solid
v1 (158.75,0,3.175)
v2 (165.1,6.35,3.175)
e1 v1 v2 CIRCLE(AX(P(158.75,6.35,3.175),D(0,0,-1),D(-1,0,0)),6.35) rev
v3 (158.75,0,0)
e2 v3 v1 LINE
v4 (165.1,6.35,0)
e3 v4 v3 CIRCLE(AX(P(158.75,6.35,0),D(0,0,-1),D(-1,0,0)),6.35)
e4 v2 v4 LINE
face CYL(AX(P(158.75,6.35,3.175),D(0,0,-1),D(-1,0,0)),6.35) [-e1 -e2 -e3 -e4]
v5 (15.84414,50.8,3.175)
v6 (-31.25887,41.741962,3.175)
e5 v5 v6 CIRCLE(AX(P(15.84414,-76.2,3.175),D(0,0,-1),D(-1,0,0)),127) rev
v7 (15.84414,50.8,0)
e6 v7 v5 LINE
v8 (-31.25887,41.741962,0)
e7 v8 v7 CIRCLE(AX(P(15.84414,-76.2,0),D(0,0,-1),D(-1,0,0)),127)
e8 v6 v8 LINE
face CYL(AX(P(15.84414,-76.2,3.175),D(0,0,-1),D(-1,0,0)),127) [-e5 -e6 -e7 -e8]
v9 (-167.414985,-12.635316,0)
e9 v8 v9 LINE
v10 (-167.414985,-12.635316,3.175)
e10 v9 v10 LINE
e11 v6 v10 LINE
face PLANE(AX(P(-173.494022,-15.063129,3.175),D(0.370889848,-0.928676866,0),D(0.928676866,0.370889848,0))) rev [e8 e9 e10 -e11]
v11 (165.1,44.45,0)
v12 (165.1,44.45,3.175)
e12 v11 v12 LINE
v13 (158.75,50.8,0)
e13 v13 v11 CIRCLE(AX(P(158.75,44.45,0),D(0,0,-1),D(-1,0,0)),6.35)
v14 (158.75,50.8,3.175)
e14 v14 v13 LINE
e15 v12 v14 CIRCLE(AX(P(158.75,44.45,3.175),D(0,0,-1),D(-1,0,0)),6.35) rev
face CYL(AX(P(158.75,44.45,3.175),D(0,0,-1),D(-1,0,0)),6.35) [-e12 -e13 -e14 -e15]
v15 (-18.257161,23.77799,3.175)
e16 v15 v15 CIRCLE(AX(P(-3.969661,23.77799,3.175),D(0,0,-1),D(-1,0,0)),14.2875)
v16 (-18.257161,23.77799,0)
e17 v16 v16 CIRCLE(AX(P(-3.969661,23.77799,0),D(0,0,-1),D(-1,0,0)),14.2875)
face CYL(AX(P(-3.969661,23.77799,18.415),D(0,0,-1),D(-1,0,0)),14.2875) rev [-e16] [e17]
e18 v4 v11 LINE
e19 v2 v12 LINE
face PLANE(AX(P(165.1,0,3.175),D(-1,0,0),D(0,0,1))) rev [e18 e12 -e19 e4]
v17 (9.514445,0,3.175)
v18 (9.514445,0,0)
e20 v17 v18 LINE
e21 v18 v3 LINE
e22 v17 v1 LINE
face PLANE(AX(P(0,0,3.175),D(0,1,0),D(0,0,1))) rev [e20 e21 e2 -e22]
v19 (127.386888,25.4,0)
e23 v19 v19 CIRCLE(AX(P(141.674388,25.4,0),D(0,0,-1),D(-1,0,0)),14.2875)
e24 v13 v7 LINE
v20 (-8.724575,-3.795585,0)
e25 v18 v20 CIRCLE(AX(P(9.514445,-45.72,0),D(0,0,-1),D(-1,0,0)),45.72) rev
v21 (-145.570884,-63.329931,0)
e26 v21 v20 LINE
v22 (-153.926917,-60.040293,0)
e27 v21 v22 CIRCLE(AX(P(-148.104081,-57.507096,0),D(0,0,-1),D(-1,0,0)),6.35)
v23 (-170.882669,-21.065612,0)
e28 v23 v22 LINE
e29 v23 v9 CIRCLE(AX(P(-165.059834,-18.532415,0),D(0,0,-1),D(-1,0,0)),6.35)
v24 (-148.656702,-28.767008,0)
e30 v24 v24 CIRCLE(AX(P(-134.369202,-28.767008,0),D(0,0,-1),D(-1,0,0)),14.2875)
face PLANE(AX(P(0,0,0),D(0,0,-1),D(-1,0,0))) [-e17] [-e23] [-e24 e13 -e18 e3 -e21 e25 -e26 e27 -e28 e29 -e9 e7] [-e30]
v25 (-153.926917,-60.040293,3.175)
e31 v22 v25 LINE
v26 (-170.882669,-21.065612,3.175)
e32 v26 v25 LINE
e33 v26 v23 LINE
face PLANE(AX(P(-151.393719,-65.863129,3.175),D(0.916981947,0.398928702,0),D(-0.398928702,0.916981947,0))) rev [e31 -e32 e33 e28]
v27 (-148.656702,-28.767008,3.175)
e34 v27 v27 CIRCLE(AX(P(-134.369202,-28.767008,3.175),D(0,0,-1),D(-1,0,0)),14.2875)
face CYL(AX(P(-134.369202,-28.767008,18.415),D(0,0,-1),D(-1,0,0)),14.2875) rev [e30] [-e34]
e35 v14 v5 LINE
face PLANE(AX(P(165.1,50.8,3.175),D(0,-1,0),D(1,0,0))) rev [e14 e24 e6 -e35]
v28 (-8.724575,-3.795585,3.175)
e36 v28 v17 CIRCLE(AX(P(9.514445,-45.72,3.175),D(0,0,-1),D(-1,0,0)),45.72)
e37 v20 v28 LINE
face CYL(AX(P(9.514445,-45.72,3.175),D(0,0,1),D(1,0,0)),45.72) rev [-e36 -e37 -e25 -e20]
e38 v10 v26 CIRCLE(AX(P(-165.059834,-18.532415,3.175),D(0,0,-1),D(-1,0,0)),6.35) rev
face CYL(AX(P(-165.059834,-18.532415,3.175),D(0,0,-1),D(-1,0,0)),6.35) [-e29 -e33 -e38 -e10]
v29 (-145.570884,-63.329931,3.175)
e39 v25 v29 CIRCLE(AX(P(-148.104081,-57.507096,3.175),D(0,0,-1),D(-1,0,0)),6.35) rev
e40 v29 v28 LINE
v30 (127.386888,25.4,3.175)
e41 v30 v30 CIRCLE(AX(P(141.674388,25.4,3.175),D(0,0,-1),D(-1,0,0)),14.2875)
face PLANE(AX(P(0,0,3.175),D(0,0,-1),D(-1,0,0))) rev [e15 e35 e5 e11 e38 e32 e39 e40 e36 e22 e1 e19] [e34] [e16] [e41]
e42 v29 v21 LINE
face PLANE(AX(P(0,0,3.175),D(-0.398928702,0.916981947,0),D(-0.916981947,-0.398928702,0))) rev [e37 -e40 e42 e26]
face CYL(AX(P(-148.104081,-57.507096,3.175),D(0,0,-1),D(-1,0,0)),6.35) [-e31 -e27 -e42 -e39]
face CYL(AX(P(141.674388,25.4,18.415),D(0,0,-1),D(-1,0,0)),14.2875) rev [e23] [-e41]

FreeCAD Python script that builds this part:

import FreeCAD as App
import Part
import Sketcher
Q = App.Units.Quantity


def edges_at(feature, points):
    """Names of the edges that pass closest to the given points."""
    edges = feature.Shape.Edges
    near = lambda p: min(range(len(edges)), key=lambda i: edges[i].distToShape(Part.Vertex(*p))[0])
    return sorted({f"Edge{near(p) + 1}" for p in points})

doc = App.newDocument("Part")
params = doc.addObject("Spreadsheet::Sheet", "Params")
for row, (alias, value) in enumerate([
    ("sketch1_height", "2 in"),
    ("sketch1_width", "6.5 in"),
    ("sketch1_length", "6.5 in"),
    ("pad1_length", "0.125 in"),
    ("fillet_radius", "1.8 in"),
    ("fillet2_radius", "5 in"),
    ("fillet3_radius", "0.25 in"),
    ("fillet4_radius", "0.25 in"),
    ("fillet5_radius", "0.25 in"),
    ("fillet6_radius", "0.25 in"),
    ("sketch2_diameter", "1.125 in"),
    ("pocket1_length", "0.725 in"),
], start=1):
    params.set(f"A{row}", alias)
    params.set(f"B{row}", "=" + value)
    params.setAlias(f"B{row}", alias)

body = doc.addObject("PartDesign::Body", "Body")

# Sketch on XY plane
sketch1 = body.newObject("Sketcher::SketchObject", "Sketch")
sketch1.AttachmentSupport = (doc.getObject("XY_Plane"), [""])
sketch1.MapMode = "FlatFace"
sketch1.addGeometry([
    Part.LineSegment(App.Vector(0, 0, 0), App.Vector(165.1, 0, 0)),  # 0
    Part.LineSegment(App.Vector(165.1, 0, 0), App.Vector(165.1, 50.8, 0)),  # 1
    Part.LineSegment(App.Vector(165.1, 50.8, 0), App.Vector(-8.578308, 50.8, 0)),  # 2
    Part.LineSegment(App.Vector(-8.578308, 50.8, 0), App.Vector(-173.494022, -15.063129, 0)),  # 3
    Part.LineSegment(App.Vector(-173.494022, -15.063129, 0), App.Vector(-151.393719, -65.863129, 0)),  # 4
    Part.LineSegment(App.Vector(-151.393719, -65.863129, 0), App.Vector(0, 0, 0)),  # 5
], False)
sketch1.addConstraint([
    Sketcher.Constraint("Coincident", 0, 2, 1, 1),
    Sketcher.Constraint("Coincident", 1, 2, 2, 1),
    Sketcher.Constraint("Coincident", 2, 2, 3, 1),
    Sketcher.Constraint("Coincident", 3, 2, 4, 1),
    Sketcher.Constraint("Coincident", 4, 2, 5, 1),
    Sketcher.Constraint("Coincident", 5, 2, 0, 1),
    Sketcher.Constraint("Horizontal", 0),
    Sketcher.Constraint("Vertical", 1),
    Sketcher.Constraint("Horizontal", 2),
    Sketcher.Constraint("Coincident", 5, 2, -1, 1),
    Sketcher.Constraint("Perpendicular", 4, 5),
    Sketcher.Constraint("DistanceY", 1, 1, 1, 2, Q("2 in")),
    Sketcher.Constraint("DistanceX", 0, 1, 0, 2, Q("6.5 in")),
    Sketcher.Constraint("DistanceY", 4, 2, 3, 2, Q("2 in")),
    Sketcher.Constraint("Distance", 5, Q("6.5 in")),
    Sketcher.Constraint("DistanceX", 2, 2, 2, 1, Q("173.678308 mm")),
    Sketcher.Constraint("DistanceX", 3, 2, -1, 1, Q("173.494022 mm")),
])
sketch1.setExpression("Constraints[11]", "Params.sketch1_height")
sketch1.setExpression("Constraints[12]", "Params.sketch1_width")
sketch1.setExpression("Constraints[14]", "Params.sketch1_length")
pad1 = body.newObject("PartDesign::Pad", "Pad")
pad1.Profile = sketch1
pad1.setExpression("Length", "Params.pad1_length")
doc.recompute()

fillet = body.newObject("PartDesign::Fillet", "Fillet")
fillet.Base = (pad1, edges_at(pad1, [(0, 0, 1.587)]))
fillet.setExpression("Radius", "Params.fillet_radius")
doc.recompute()

fillet2 = body.newObject("PartDesign::Fillet", "Fillet001")
fillet2.Base = (fillet, edges_at(fillet, [(-8.578, 50.8, 1.587)]))
fillet2.setExpression("Radius", "Params.fillet2_radius")
doc.recompute()

fillet3 = body.newObject("PartDesign::Fillet", "Fillet002")
fillet3.Base = (fillet2, edges_at(fillet2, [(-151.394, -65.863, 1.587)]))
fillet3.setExpression("Radius", "Params.fillet3_radius")
doc.recompute()

fillet4 = body.newObject("PartDesign::Fillet", "Fillet003")
fillet4.Base = (fillet3, edges_at(fillet3, [(-173.494, -15.063, 1.587)]))
fillet4.setExpression("Radius", "Params.fillet4_radius")
doc.recompute()

fillet5 = body.newObject("PartDesign::Fillet", "Fillet004")
fillet5.Base = (fillet4, edges_at(fillet4, [(165.1, 0, 1.587)]))
fillet5.setExpression("Radius", "Params.fillet5_radius")
doc.recompute()

fillet6 = body.newObject("PartDesign::Fillet", "Fillet005")
fillet6.Base = (fillet5, edges_at(fillet5, [(165.1, 50.8, 1.587)]))
fillet6.setExpression("Radius", "Params.fillet6_radius")

# Sketch on XY plane
sketch2 = body.newObject("Sketcher::SketchObject", "Sketch001")
sketch2.AttachmentSupport = (doc.getObject("XY_Plane"), [""])
sketch2.MapMode = "FlatFace"
sketch2.addGeometry([
    Part.Circle(App.Vector(141.674388, 25.4, 0), App.Vector(0, 0, 1), 14.2875),
    Part.Circle(App.Vector(-134.369202, -28.767008, 0), App.Vector(0, 0, 1), 14.2875),
    Part.Circle(App.Vector(-3.969661, 23.77799, 0), App.Vector(0, 0, 1), 14.2875),
], False)
sketch2.addConstraint([
    Sketcher.Constraint("Equal", 0, 1),
    Sketcher.Constraint("Equal", 1, 2),
    Sketcher.Constraint("Diameter", 0, Q("1.125 in")),
    Sketcher.Constraint("DistanceY", -1, 1, 0, 3, Q("1 in")),
    Sketcher.Constraint("DistanceX", 1, 3, -1, 1, Q("134.369202 mm")),
    Sketcher.Constraint("DistanceX", 2, 3, -1, 1, Q("3.969661 mm")),
    Sketcher.Constraint("DistanceY", -1, 1, 2, 3, Q("23.77799 mm")),
    Sketcher.Constraint("DistanceX", 1, 3, 0, 3, Q("276.04359 mm")),
    Sketcher.Constraint("DistanceY", 1, 3, -1, 1, Q("28.767008 mm")),
])
sketch2.setExpression("Constraints[2]", "Params.sketch2_diameter")
pocket1 = body.newObject("PartDesign::Pocket", "Pocket")
pocket1.Profile = sketch2
pocket1.setExpression("Length", "Params.pocket1_length")
pocket1.Reversed = True

doc.recompute()
